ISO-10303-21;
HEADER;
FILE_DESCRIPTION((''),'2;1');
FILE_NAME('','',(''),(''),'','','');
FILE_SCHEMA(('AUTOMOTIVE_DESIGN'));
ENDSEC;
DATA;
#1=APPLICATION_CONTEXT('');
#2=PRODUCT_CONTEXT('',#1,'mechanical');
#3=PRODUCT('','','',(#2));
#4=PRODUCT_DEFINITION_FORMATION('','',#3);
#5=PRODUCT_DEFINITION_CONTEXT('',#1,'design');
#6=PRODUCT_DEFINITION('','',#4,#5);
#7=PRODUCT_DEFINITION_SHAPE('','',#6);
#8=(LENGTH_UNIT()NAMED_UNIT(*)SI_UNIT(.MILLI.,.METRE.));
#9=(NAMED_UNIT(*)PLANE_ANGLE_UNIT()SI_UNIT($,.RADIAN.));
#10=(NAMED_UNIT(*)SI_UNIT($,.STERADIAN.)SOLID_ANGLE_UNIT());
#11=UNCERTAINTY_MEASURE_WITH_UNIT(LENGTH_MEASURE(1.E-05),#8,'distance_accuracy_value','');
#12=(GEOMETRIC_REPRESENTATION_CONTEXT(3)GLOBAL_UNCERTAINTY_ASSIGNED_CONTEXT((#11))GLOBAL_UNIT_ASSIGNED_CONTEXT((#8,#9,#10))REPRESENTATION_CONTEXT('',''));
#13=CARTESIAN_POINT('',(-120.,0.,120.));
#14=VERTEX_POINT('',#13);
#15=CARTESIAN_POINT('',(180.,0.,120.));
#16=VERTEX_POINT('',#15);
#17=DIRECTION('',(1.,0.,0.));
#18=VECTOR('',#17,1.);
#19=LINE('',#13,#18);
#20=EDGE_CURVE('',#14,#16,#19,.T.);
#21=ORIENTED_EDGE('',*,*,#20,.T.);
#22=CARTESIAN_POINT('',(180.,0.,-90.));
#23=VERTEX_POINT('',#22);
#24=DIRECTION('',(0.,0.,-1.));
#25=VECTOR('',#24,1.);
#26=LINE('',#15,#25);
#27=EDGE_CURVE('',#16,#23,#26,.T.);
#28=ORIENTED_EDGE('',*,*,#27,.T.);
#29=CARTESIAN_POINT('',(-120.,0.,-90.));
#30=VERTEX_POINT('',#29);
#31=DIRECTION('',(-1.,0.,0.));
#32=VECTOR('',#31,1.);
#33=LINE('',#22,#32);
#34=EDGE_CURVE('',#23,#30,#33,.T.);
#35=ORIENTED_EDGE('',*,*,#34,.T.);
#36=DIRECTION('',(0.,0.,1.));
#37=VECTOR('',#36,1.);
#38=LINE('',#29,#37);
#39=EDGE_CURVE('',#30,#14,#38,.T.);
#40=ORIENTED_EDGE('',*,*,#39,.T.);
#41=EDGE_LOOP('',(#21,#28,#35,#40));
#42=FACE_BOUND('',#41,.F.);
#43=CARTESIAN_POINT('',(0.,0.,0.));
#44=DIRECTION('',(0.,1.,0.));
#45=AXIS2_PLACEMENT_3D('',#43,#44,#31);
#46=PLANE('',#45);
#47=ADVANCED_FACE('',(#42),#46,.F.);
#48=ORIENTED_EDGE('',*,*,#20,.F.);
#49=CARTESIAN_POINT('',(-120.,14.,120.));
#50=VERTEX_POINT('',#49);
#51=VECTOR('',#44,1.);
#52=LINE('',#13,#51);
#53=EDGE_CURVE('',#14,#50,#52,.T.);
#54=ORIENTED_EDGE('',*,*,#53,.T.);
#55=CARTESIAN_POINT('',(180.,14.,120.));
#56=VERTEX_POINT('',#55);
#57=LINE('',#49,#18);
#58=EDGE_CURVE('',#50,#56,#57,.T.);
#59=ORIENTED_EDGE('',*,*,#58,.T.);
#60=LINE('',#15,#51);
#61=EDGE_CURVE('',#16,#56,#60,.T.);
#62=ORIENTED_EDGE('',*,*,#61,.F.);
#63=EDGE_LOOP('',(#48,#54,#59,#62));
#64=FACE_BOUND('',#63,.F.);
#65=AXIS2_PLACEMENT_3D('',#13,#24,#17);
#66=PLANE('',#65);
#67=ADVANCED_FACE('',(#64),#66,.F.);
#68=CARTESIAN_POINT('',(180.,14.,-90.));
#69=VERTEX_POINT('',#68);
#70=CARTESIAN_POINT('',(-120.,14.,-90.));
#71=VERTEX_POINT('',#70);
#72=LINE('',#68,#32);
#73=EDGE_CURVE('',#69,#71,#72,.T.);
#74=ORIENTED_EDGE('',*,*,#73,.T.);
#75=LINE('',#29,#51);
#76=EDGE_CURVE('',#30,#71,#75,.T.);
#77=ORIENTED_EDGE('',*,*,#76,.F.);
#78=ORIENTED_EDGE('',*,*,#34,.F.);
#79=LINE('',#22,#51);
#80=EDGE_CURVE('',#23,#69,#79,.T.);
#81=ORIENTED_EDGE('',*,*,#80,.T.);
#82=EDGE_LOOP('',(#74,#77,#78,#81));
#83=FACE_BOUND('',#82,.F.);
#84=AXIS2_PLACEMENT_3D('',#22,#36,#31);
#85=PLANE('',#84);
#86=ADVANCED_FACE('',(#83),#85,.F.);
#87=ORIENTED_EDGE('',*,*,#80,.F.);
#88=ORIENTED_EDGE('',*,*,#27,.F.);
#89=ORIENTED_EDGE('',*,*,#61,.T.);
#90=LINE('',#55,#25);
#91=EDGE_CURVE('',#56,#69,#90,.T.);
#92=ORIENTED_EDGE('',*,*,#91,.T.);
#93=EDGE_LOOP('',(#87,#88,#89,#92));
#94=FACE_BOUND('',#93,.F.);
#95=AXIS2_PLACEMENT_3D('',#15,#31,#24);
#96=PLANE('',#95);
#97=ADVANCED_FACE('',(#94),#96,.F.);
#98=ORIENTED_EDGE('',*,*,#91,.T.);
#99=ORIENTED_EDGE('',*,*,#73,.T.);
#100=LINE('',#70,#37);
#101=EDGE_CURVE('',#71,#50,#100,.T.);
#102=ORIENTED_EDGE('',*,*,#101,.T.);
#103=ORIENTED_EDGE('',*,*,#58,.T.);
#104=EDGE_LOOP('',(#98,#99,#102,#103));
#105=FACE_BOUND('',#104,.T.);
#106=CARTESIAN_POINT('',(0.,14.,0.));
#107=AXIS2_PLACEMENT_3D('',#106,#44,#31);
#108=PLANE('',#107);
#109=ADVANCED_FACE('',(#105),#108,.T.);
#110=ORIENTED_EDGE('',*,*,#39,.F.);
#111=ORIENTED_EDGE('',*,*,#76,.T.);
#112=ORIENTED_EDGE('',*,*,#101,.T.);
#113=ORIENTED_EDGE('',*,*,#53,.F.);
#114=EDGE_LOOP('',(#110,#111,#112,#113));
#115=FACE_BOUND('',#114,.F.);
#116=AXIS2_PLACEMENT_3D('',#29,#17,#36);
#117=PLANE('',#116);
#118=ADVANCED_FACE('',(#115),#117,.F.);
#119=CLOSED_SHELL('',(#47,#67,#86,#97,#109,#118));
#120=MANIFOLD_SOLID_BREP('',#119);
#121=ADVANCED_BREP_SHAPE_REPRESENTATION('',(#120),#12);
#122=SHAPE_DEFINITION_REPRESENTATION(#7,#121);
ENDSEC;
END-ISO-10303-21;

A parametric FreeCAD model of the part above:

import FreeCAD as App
import Part
import Sketcher
Q = App.Units.Quantity

doc = App.newDocument("Part")
body = doc.addObject("PartDesign::Body", "Body")

sketch1 = body.newObject("Sketcher::SketchObject", "Sketch")
sketch1.AttachmentSupport = (doc.getObject("XZ_Plane"), [""])
sketch1.MapMode = "FlatFace"
sketch1.addGeometry(Part.LineSegment(App.Vector(-120, -90, 0), App.Vector(-120, 120, 0)), False)
sketch1.addGeometry(Part.LineSegment(App.Vector(-120, 120, 0), App.Vector(180, 120, 0)), False)
sketch1.addGeometry(Part.LineSegment(App.Vector(180, 120, 0), App.Vector(180, -90, 0)), False)
sketch1.addGeometry(Part.LineSegment(App.Vector(180, -90, 0), App.Vector(-120, -90, 0)), False)
sketch1.addConstraint(Sketcher.Constraint("Coincident", 0, 2, 1, 1))
sketch1.addConstraint(Sketcher.Constraint("Coincident", 1, 2, 2, 1))
sketch1.addConstraint(Sketcher.Constraint("Coincident", 2, 2, 3, 1))
sketch1.addConstraint(Sketcher.Constraint("Coincident", 3, 2, 0, 1))
sketch1.addConstraint(Sketcher.Constraint("Vertical", 0))
sketch1.addConstraint(Sketcher.Constraint("Horizontal", 1))
sketch1.addConstraint(Sketcher.Constraint("Vertical", 2))
sketch1.addConstraint(Sketcher.Constraint("Horizontal", 3))
sketch1.addConstraint(Sketcher.Constraint("DistanceX", 1, 1, 1, 2, Q("300 mm")))
sketch1.addConstraint(Sketcher.Constraint("DistanceY", 0, 1, 0, 2, Q("210 mm")))
sketch1.addConstraint(Sketcher.Constraint("DistanceX", 0, 2, -1, 1, Q("120 mm")))
sketch1.addConstraint(Sketcher.Constraint("DistanceY", -1, 1, 0, 2, Q("120 mm")))
pad1 = body.newObject("PartDesign::Pad", "Pad")
pad1.Profile = sketch1
pad1.Length = 14
pad1.Reversed = True

doc.recompute()
